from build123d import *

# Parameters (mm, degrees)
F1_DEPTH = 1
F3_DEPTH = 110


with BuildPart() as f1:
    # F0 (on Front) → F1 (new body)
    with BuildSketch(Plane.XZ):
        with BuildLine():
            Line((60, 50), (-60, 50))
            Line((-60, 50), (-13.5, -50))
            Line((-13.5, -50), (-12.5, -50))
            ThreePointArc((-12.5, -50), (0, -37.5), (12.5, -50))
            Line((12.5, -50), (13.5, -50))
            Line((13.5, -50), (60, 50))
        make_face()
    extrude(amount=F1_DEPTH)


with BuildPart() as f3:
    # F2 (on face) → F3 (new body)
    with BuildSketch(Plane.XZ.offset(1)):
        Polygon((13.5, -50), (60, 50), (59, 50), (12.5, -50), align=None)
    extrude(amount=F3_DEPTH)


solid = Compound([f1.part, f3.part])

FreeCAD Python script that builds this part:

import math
import FreeCAD as App
import Part
import Sketcher

V = App.Vector
Q = App.Units.Quantity


def add_polygon(sketch, points):
    """Adds a closed chain of lines whose ends are joined by coincident constraints."""
    first, n = sketch.GeometryCount, len(points)
    for a, b in zip(points, points[1:] + points[:1]):
        sketch.addGeometry(Part.LineSegment(App.Vector(*a, 0), App.Vector(*b, 0)), False)
    for i in range(n):
        sketch.addConstraint(Sketcher.Constraint("Coincident", first + i, 2, first + (i + 1) % n, 1))

doc = App.newDocument("Part")
body = doc.addObject("PartDesign::Body", "Body")

# Sketch on XZ plane
sketch1 = body.newObject("Sketcher::SketchObject", "Sketch")
sketch1.AttachmentSupport = (doc.getObject("XZ_Plane"), [""])
sketch1.MapMode = "FlatFace"
sketch1.addGeometry([
    Part.LineSegment(V(60, 50, 0), V(-60, 50, 0)),  # 0
    Part.LineSegment(V(-60, 50, 0), V(-13.5, -50, 0)),  # 1
    Part.LineSegment(V(-13.5, -50, 0), V(-12.5, -50, 0)),  # 2
    Part.ArcOfCircle(Part.Circle(V(0, -50, 0), V(0, 0, 1), 12.5), math.radians(0), math.radians(180)),  # 3
    Part.LineSegment(V(12.5, -50, 0), V(13.5, -50, 0)),  # 4
    Part.LineSegment(V(13.5, -50, 0), V(60, 50, 0)),  # 5
], False)
sketch1.addConstraint([
    Sketcher.Constraint("Coincident", 0, 2, 1, 1),
    Sketcher.Constraint("Coincident", 1, 2, 2, 1),
    Sketcher.Constraint("Coincident", 2, 2, 3, 2),
    Sketcher.Constraint("Coincident", 3, 1, 4, 1),
    Sketcher.Constraint("Coincident", 4, 2, 5, 1),
    Sketcher.Constraint("Coincident", 5, 2, 0, 1),
    Sketcher.Constraint("Horizontal", 0),
    Sketcher.Constraint("Horizontal", 2),
    Sketcher.Constraint("Horizontal", 4),
    Sketcher.Constraint("Symmetric", 2, 2, 3, 1, -2),
    Sketcher.Constraint("Horizontal", 3, 3, 1, 2),
    Sketcher.Constraint("Equal", 2, 4),
    Sketcher.Constraint("Equal", 1, 5),
    Sketcher.Constraint("Radius", 3, Q("12.5 mm")),
    Sketcher.Constraint("DistanceX", 0, 2, 0, 1, Q("120 mm")),
    Sketcher.Constraint("DistanceX", 2, 1, 2, 2, Q("1 mm")),
    Sketcher.Constraint("DistanceY", 3, 3, -1, 1, Q("50 mm")),
    Sketcher.Constraint("DistanceY", -1, 1, 0, 2, Q("50 mm")),
])
pad1 = body.newObject("PartDesign::Pad", "Pad")
pad1.Profile = sketch1
pad1.Length = 1
body2 = doc.addObject("PartDesign::Body", "Body001")

# Sketch on XZ plane
sketch2 = body2.newObject("Sketcher::SketchObject", "Sketch001")
sketch2.AttachmentSupport = (doc.getObject("XZ_Plane001"), [""])
sketch2.MapMode = "FlatFace"
sketch2.AttachmentOffset = App.Placement(V(0, 0, 1), App.Rotation())
add_polygon(sketch2, [(13.5, -50), (60, 50), (59, 50), (12.5, -50)])  # lines 0-3
sketch2.addConstraint([
    Sketcher.Constraint("Horizontal", 1),
    Sketcher.Constraint("Horizontal", 3),
    Sketcher.Constraint("Parallel", 0, 2),
    Sketcher.Constraint("DistanceX", 1, 2, 1, 1, Q("1 mm")),
    Sketcher.Constraint("DistanceX", -1, 1, 0, 2, Q("60 mm")),
    Sketcher.Constraint("DistanceY", -1, 1, 0, 2, Q("50 mm")),
    Sketcher.Constraint("DistanceY", 2, 2, -1, 1, Q("50 mm")),
    Sketcher.Constraint("DistanceX", -1, 1, 2, 2, Q("12.5 mm")),
])
pad2 = body2.newObject("PartDesign::Pad", "Pad001")
pad2.Profile = sketch2
pad2.Length = 110

doc.recompute()
